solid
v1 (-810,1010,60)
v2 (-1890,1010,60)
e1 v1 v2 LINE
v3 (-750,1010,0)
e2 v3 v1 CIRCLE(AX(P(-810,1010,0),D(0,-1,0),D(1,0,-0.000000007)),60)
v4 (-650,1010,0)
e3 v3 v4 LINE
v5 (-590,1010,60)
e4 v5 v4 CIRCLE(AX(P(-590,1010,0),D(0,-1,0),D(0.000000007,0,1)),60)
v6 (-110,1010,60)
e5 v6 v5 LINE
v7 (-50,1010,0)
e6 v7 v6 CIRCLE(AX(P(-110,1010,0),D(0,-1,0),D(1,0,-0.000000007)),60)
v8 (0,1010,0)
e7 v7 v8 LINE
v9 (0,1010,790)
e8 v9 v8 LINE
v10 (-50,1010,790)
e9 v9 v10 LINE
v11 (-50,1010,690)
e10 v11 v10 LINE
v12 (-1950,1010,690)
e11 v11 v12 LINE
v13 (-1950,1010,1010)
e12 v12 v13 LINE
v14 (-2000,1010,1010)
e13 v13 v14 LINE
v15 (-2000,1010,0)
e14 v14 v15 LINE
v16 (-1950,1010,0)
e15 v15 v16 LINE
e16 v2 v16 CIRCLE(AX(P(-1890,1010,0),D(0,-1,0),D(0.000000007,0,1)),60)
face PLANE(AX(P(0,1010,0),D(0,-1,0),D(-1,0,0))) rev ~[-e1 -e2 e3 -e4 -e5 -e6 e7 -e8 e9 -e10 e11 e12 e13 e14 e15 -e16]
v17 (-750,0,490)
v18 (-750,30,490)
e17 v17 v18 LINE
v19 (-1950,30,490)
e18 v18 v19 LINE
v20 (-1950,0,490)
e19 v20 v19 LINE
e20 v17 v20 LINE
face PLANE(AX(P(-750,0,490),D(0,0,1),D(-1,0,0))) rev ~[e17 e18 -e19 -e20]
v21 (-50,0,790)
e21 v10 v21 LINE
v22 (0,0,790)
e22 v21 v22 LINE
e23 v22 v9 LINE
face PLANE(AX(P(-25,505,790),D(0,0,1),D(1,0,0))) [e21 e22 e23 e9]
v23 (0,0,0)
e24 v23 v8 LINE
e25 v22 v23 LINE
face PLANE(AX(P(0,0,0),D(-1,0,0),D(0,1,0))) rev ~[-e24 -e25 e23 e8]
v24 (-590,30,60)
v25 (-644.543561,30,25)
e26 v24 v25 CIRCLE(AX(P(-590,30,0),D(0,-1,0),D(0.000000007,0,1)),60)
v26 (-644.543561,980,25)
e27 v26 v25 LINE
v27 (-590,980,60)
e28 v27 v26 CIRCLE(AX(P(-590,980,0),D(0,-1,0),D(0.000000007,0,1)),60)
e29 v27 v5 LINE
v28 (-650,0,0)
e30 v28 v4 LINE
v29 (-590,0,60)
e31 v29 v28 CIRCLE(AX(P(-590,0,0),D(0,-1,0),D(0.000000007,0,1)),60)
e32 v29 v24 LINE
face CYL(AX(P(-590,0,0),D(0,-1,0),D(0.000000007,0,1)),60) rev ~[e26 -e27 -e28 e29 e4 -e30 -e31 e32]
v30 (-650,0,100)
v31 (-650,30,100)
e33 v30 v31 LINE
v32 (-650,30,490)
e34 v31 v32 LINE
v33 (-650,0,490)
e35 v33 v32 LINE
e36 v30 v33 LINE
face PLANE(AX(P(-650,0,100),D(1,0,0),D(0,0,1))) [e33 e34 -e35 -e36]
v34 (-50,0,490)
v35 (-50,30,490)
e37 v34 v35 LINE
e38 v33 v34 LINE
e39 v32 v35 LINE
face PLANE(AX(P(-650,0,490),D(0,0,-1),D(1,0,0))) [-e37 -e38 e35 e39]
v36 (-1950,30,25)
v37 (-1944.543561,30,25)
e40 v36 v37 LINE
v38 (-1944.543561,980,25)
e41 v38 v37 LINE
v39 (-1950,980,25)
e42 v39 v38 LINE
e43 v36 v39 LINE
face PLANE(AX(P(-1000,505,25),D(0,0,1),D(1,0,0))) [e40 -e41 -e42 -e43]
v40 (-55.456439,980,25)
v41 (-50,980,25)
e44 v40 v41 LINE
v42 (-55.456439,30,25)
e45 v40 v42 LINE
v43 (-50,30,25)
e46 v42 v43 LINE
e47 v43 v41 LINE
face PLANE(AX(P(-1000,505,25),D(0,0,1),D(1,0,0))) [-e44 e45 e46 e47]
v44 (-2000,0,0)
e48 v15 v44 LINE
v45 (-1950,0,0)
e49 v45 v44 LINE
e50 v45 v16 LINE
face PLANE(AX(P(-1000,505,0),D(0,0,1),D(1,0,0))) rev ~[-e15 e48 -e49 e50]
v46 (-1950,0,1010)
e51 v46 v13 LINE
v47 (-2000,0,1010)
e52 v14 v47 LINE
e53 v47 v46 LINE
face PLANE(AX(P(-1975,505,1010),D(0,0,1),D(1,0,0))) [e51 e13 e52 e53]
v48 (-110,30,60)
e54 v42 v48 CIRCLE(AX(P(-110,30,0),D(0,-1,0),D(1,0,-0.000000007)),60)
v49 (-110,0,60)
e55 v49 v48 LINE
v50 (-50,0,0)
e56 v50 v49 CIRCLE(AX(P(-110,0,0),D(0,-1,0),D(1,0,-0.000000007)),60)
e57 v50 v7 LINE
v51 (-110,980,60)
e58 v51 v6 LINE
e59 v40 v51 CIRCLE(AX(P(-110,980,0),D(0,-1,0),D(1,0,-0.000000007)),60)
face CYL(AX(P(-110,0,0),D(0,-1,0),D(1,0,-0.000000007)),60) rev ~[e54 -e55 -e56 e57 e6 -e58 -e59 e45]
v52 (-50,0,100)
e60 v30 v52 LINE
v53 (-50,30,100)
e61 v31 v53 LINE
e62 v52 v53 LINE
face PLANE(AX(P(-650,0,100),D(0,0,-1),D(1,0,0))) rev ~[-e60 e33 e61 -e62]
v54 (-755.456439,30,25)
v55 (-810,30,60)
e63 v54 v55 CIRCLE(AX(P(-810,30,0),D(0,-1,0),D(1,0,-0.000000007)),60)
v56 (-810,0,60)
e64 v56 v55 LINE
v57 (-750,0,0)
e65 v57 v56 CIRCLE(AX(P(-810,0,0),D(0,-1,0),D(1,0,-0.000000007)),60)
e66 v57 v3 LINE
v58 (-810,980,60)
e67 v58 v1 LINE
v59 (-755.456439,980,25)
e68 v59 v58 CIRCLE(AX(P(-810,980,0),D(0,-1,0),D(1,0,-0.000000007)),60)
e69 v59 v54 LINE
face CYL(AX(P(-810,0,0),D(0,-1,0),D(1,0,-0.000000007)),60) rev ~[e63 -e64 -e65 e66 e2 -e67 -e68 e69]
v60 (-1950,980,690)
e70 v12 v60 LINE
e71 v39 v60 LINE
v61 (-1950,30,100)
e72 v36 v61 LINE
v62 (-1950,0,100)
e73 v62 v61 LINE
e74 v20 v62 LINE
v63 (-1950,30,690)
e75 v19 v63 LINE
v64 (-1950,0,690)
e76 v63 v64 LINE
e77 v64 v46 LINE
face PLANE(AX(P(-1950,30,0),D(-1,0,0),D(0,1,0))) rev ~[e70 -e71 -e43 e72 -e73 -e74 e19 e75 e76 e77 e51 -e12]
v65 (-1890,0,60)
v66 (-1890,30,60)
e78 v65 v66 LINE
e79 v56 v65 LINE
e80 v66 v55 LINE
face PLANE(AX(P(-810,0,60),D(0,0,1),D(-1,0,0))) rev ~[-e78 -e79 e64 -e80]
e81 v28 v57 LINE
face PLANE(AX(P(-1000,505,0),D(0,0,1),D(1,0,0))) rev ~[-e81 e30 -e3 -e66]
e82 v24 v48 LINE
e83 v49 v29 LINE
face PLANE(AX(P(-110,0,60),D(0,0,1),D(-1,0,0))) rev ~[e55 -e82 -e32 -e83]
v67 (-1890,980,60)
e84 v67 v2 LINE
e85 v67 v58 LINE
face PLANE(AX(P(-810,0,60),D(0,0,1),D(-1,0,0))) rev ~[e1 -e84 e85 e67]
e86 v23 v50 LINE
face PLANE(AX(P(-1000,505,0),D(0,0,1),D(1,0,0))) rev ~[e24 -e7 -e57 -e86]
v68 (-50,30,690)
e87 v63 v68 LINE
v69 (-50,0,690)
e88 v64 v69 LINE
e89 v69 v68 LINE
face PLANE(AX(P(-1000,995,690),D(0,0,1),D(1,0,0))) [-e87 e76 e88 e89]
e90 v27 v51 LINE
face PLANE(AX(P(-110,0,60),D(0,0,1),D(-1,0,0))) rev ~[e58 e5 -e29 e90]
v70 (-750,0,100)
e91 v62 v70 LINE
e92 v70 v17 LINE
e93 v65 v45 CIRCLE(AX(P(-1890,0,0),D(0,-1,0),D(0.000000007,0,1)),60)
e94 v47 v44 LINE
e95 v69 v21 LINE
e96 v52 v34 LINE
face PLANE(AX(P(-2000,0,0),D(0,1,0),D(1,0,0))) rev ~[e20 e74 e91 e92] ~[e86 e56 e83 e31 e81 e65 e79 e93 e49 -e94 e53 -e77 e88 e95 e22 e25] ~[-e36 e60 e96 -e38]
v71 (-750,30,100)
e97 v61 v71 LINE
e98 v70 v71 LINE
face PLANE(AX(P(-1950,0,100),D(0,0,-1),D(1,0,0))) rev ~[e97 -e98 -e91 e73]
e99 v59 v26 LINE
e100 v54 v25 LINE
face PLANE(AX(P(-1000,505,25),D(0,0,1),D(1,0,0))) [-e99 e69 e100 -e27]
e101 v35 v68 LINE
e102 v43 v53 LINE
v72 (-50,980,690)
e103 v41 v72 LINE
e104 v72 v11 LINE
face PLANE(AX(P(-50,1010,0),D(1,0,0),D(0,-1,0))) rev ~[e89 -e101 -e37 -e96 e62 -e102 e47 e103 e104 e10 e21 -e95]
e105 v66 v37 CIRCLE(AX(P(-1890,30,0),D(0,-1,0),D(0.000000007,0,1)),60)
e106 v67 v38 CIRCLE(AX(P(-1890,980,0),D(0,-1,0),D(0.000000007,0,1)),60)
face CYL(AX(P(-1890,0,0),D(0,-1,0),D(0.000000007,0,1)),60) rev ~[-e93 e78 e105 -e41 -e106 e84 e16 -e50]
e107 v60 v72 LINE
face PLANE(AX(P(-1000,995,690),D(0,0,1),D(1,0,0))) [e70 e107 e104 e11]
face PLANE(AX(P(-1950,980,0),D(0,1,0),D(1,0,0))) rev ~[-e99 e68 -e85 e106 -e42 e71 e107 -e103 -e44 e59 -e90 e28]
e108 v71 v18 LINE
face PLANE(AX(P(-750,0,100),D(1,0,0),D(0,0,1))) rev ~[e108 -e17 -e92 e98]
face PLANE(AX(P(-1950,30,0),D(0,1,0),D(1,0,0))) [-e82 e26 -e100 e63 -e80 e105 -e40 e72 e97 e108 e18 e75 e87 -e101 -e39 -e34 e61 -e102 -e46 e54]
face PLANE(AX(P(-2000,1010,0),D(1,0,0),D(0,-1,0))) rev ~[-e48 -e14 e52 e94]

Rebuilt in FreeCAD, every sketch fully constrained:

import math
import FreeCAD as App
import Part
import Sketcher
from FreeCAD import Vector
Q = App.Units.Quantity


def add_polygon(sketch, points):
    """Adds a closed chain of lines whose ends are joined by coincident constraints."""
    first, n = sketch.GeometryCount, len(points)
    for a, b in zip(points, points[1:] + points[:1]):
        sketch.addGeometry(Part.LineSegment(App.Vector(*a, 0), App.Vector(*b, 0)), False)
    for i in range(n):
        sketch.addConstraint(Sketcher.Constraint("Coincident", first + i, 2, first + (i + 1) % n, 1))

doc = App.newDocument("Part")
body = doc.addObject("PartDesign::Body", "Body")

sketch1 = body.newObject("Sketcher::SketchObject", "Sketch")
sketch1.AttachmentSupport = (doc.getObject("XY_Plane"), [""])
sketch1.MapMode = "FlatFace"
add_polygon(sketch1, [(-2000, 1010), (-2000, 0), (0, 0), (0, 1010)])
add_polygon(sketch1, [(-1950, 980), (-50, 980), (-50, 30), (-1950, 30)])
sketch1.addConstraint([
    Sketcher.Constraint("Vertical", 0),
    Sketcher.Constraint("Horizontal", 1),
    Sketcher.Constraint("Vertical", 2),
    Sketcher.Constraint("Horizontal", 3),
    Sketcher.Constraint("Horizontal", 4),
    Sketcher.Constraint("Vertical", 5),
    Sketcher.Constraint("Horizontal", 6),
    Sketcher.Constraint("Vertical", 7),
    Sketcher.Constraint("Coincident", 1, 2, -1, 1),
    Sketcher.Constraint("DistanceX", 1, 1, 1, 2, Q("2000 mm")),
    Sketcher.Constraint("DistanceX", 4, 1, 4, 2, Q("1900 mm")),
    Sketcher.Constraint("DistanceY", 0, 2, 0, 1, Q("1010 mm")),
    Sketcher.Constraint("DistanceY", 5, 2, 5, 1, Q("950 mm")),
    Sketcher.Constraint("DistanceX", 4, 2, -1, 1, Q("50 mm")),
    Sketcher.Constraint("DistanceY", -1, 1, 4, 2, Q("980 mm")),
])
pad1 = body.newObject("PartDesign::Pad", "Pad")
pad1.Profile = sketch1
pad1.Length = 690

sketch2 = body.newObject("Sketcher::SketchObject", "Sketch001")
sketch2.AttachmentSupport = (doc.getObject("XY_Plane"), [""])
sketch2.MapMode = "FlatFace"
add_polygon(sketch2, [(-1950, 1010), (-2000, 1010), (-2000, 0), (-1950, 0)])
sketch2.addConstraint([
    Sketcher.Constraint("Horizontal", 0),
    Sketcher.Constraint("Vertical", 1),
    Sketcher.Constraint("Horizontal", 2),
    Sketcher.Constraint("Vertical", 3),
    Sketcher.Constraint("PointOnObject", 1, 2, -1),
    Sketcher.Constraint("DistanceX", 0, 2, 0, 1, Q("50 mm")),
    Sketcher.Constraint("DistanceY", 1, 2, 1, 1, Q("1010 mm")),
    Sketcher.Constraint("DistanceX", 0, 2, -1, 1, Q("2000 mm")),
])
pad2 = body.newObject("PartDesign::Pad", "Pad001")
pad2.Profile = sketch2
pad2.Length = 1010

sketch3 = body.newObject("Sketcher::SketchObject", "Sketch002")
sketch3.AttachmentSupport = (doc.getObject("XY_Plane"), [""])
sketch3.MapMode = "FlatFace"
add_polygon(sketch3, [(-1950, 980), (-1950, 30), (-50, 30), (-50, 980)])
sketch3.addConstraint([
    Sketcher.Constraint("Vertical", 0),
    Sketcher.Constraint("Horizontal", 1),
    Sketcher.Constraint("Vertical", 2),
    Sketcher.Constraint("Horizontal", 3),
    Sketcher.Constraint("DistanceX", 1, 1, 1, 2, Q("1900 mm")),
    Sketcher.Constraint("DistanceY", 0, 2, 0, 1, Q("950 mm")),
    Sketcher.Constraint("DistanceX", 0, 2, -1, 1, Q("1950 mm")),
    Sketcher.Constraint("DistanceY", -1, 1, 0, 2, Q("30 mm")),
])
pad3 = body.newObject("PartDesign::Pad", "Pad002")
pad3.Profile = sketch3
pad3.Length = 25

sketch4 = body.newObject("Sketcher::SketchObject", "Sketch003")
sketch4.AttachmentSupport = (doc.getObject("XY_Plane"), [""])
sketch4.MapMode = "FlatFace"
add_polygon(sketch4, [(0, 1010), (-50, 1010), (-50, 0), (0, 0)])
sketch4.addConstraint([
    Sketcher.Constraint("Horizontal", 0),
    Sketcher.Constraint("Vertical", 1),
    Sketcher.Constraint("Horizontal", 2),
    Sketcher.Constraint("Vertical", 3),
    Sketcher.Constraint("Coincident", 2, 2, -1, 1),
    Sketcher.Constraint("DistanceX", 0, 2, 0, 1, Q("50 mm")),
    Sketcher.Constraint("DistanceY", 1, 2, 1, 1, Q("1010 mm")),
])
pad4 = body.newObject("PartDesign::Pad", "Pad003")
pad4.Profile = sketch4
pad4.Length = 790

sketch5 = body.newObject("Sketcher::SketchObject", "Sketch004")
sketch5.AttachmentSupport = (doc.getObject("XZ_Plane"), [""])
sketch5.MapMode = "FlatFace"
sketch5.addGeometry([
    Part.LineSegment(Vector(-1950, 0, 0), Vector(-750, 0, 0)),
    Part.ArcOfCircle(Part.Circle(Vector(-810, 0, 0), Vector(0, 0, 1), 60), math.radians(0), math.radians(90)),
    Part.LineSegment(Vector(-810, 60, 0), Vector(-1890, 60, 0)),
    Part.ArcOfCircle(Part.Circle(Vector(-1890, 0, 0), Vector(0, 0, 1), 60), math.radians(90), math.radians(180)),
    Part.LineSegment(Vector(-650, 0, 0), Vector(-50, 0, 0)),
    Part.ArcOfCircle(Part.Circle(Vector(-110, 0, 0), Vector(0, 0, 1), 60), math.radians(0), math.radians(90)),
    Part.LineSegment(Vector(-110, 60, 0), Vector(-590, 60, 0)),
    Part.ArcOfCircle(Part.Circle(Vector(-590, 0, 0), Vector(0, 0, 1), 60), math.radians(90), math.radians(180)),
], False)
sketch5.addConstraint([
    Sketcher.Constraint("Coincident", 0, 2, 1, 1),
    Sketcher.Constraint("Tangent", 1, 2, 2, 1),
    Sketcher.Constraint("Tangent", 2, 2, 3, 1),
    Sketcher.Constraint("Coincident", 3, 2, 0, 1),
    Sketcher.Constraint("Coincident", 4, 2, 5, 1),
    Sketcher.Constraint("Tangent", 5, 2, 6, 1),
    Sketcher.Constraint("Tangent", 6, 2, 7, 1),
    Sketcher.Constraint("Coincident", 7, 2, 4, 1),
    Sketcher.Constraint("Horizontal", 0),
    Sketcher.Constraint("Horizontal", 2),
    Sketcher.Constraint("Horizontal", 4),
    Sketcher.Constraint("Horizontal", 6),
    Sketcher.Constraint("Equal", 1, 3),
    Sketcher.Constraint("Equal", 3, 5),
    Sketcher.Constraint("Equal", 5, 7),
    Sketcher.Constraint("PointOnObject", 1, 3, -1),
    Sketcher.Constraint("PointOnObject", 5, 3, -1),
    Sketcher.Constraint("PointOnObject", 0, 2, -1),
    Sketcher.Constraint("PointOnObject", 4, 2, -1),
    Sketcher.Constraint("Radius", 1, Q("60 mm")),
    Sketcher.Constraint("DistanceX", 0, 1, 0, 2, Q("1200 mm")),
    Sketcher.Constraint("DistanceX", 4, 1, 4, 2, Q("600 mm")),
    Sketcher.Constraint("DistanceX", 1, 3, -1, 1, Q("810 mm")),
    Sketcher.Constraint("DistanceX", 5, 3, -1, 1, Q("110 mm")),
])
pocket1 = body.newObject("PartDesign::Pocket", "Pocket")
pocket1.Profile = sketch5
pocket1.Length = 1010

sketch6 = body.newObject("Sketcher::SketchObject", "Sketch005")
sketch6.AttachmentSupport = (doc.getObject("XZ_Plane"), [""])
sketch6.MapMode = "FlatFace"
add_polygon(sketch6, [(-1950, 490), (-1950, 100), (-750, 100), (-750, 490)])
add_polygon(sketch6, [(-650, 490), (-650, 100), (-50, 100), (-50, 490)])
sketch6.addConstraint([
    Sketcher.Constraint("Vertical", 0),
    Sketcher.Constraint("Horizontal", 1),
    Sketcher.Constraint("Vertical", 2),
    Sketcher.Constraint("Horizontal", 3),
    Sketcher.Constraint("Vertical", 4),
    Sketcher.Constraint("Horizontal", 5),
    Sketcher.Constraint("Vertical", 6),
    Sketcher.Constraint("Horizontal", 7),
    Sketcher.Constraint("Horizontal", 1, 2, 4, 2),
    Sketcher.Constraint("Horizontal", 3, 2, 6, 2),
    Sketcher.Constraint("DistanceX", 1, 1, 1, 2, Q("1200 mm")),
    Sketcher.Constraint("DistanceX", 5, 1, 5, 2, Q("600 mm")),
    Sketcher.Constraint("DistanceY", 0, 2, 0, 1, Q("390 mm")),
    Sketcher.Constraint("DistanceX", 0, 2, -1, 1, Q("1950 mm")),
    Sketcher.Constraint("DistanceY", -1, 1, 0, 2, Q("100 mm")),
    Sketcher.Constraint("DistanceX", 4, 2, -1, 1, Q("650 mm")),
])
pocket2 = body.newObject("PartDesign::Pocket", "Pocket001")
pocket2.Profile = sketch6
pocket2.Length = 30

doc.recompute()
